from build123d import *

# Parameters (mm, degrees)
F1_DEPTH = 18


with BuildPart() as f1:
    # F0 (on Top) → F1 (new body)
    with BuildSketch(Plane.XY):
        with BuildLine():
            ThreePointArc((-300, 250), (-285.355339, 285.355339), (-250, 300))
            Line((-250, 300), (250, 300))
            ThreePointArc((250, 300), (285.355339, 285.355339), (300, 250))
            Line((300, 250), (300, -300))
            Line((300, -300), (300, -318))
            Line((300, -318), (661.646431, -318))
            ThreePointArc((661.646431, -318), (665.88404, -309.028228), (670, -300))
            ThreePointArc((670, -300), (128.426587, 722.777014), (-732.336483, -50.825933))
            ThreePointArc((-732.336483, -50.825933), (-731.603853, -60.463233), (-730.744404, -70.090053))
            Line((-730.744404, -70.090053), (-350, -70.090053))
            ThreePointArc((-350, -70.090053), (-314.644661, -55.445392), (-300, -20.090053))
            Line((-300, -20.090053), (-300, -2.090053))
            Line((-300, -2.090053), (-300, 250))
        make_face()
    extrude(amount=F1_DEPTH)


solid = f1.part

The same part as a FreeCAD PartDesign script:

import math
import FreeCAD as App
import Part
import Sketcher

V = App.Vector

doc = App.newDocument("Part")
body = doc.addObject("PartDesign::Body", "Body")

# Sketch on XY plane
sketch1 = doc.addObject("Sketcher::SketchObject", "Sketch")
body.addObject(sketch1)
sketch1.AttachmentSupport = (doc.XY_Plane, [""])
sketch1.MapMode = "FlatFace"
sketch1.addGeometry(Part.ArcOfCircle(Part.Circle(V(-250, 250, 0), V(0, 0, 1), 50), math.radians(90), math.radians(180)), False)
sketch1.addGeometry(Part.LineSegment(V(-250, 300, 0), V(250, 300, 0)), False)
sketch1.addGeometry(Part.ArcOfCircle(Part.Circle(V(250, 250, 0), V(0, 0, 1), 50), math.radians(0), math.radians(90)), False)
sketch1.addGeometry(Part.LineSegment(V(300, 250, 0), V(300, -318, 0)), False)
sketch1.addGeometry(Part.LineSegment(V(300, -318, 0), V(662, -318, 0)), False)
sketch1.addGeometry(Part.ArcOfCircle(Part.Circle(V(0, 0, 0), V(0, 0, 1), 734), math.radians(-25.67), math.radians(-24.12)), False)
sketch1.addGeometry(Part.ArcOfCircle(Part.Circle(V(0, 0, 0), V(0, 0, 1), 734), math.radians(-24), math.radians(184)), False)
sketch1.addGeometry(Part.ArcOfCircle(Part.Circle(V(0, 0, 0), V(0, 0, 1), 734), math.radians(-176.03), math.radians(-174.52)), False)
sketch1.addGeometry(Part.LineSegment(V(-731, -70, 0), V(-350, -70, 0)), False)
sketch1.addGeometry(Part.ArcOfCircle(Part.Circle(V(-350, -20, 0), V(0, 0, 1), 50), math.radians(-90), math.radians(0)), False)
sketch1.addGeometry(Part.LineSegment(V(-300, -20, 0), V(-300, 250, 0)), False)
sketch1.addConstraint(Sketcher.Constraint("Tangent", 0, 1, 1, 1))
sketch1.addConstraint(Sketcher.Constraint("Tangent", 1, 2, 2, 2))
sketch1.addConstraint(Sketcher.Constraint("Tangent", 2, 1, 3, 1))
sketch1.addConstraint(Sketcher.Constraint("Coincident", 3, 2, 4, 1))
sketch1.addConstraint(Sketcher.Constraint("Coincident", 4, 2, 5, 1))
sketch1.addConstraint(Sketcher.Constraint("Coincident", 5, 2, 6, 1))
sketch1.addConstraint(Sketcher.Constraint("Coincident", 6, 2, 7, 1))
sketch1.addConstraint(Sketcher.Constraint("Coincident", 7, 2, 8, 1))
sketch1.addConstraint(Sketcher.Constraint("Tangent", 8, 2, 9, 1))
sketch1.addConstraint(Sketcher.Constraint("Tangent", 9, 2, 10, 1))
sketch1.addConstraint(Sketcher.Constraint("Tangent", 10, 2, 0, 2))
sketch1.addConstraint(Sketcher.Constraint("Horizontal", 1))
sketch1.addConstraint(Sketcher.Constraint("Vertical", 3))
sketch1.addConstraint(Sketcher.Constraint("Horizontal", 4))
sketch1.addConstraint(Sketcher.Constraint("Horizontal", 8))
sketch1.addConstraint(Sketcher.Constraint("Vertical", 10))
sketch1.addConstraint(Sketcher.Constraint("Coincident", 6, 3, -1, 1))
sketch1.addConstraint(Sketcher.Constraint("Equal", 0, 2))
sketch1.addConstraint(Sketcher.Constraint("Equal", 2, 9))
sketch1.addConstraint(Sketcher.Constraint("Radius", 0, 50.0))
sketch1.addConstraint(Sketcher.Constraint("DistanceX", 1, 1, 1, 2, 500.0))
sketch1.addConstraint(Sketcher.Constraint("DistanceY", 3, 2, 3, 1, 568.0))
sketch1.addConstraint(Sketcher.Constraint("DistanceX", 0, 3, -1, 1, 250.0))
sketch1.addConstraint(Sketcher.Constraint("DistanceY", -1, 1, 0, 3, 250.0))
sketch1.addConstraint(Sketcher.Constraint("DistanceX", -1, 1, 5, 2, 670.0))
sketch1.addConstraint(Sketcher.Constraint("Radius", 7, 734.093239))
sketch1.addConstraint(Sketcher.Constraint("Radius", 5, 734.093612))
sketch1.addConstraint(Sketcher.Constraint("Radius", 6, 734.098086))
sketch1.addConstraint(Sketcher.Constraint("DistanceX", 4, 1, 4, 2, 361.646431))
sketch1.addConstraint(Sketcher.Constraint("DistanceX", 8, 1, 8, 2, 380.744404))
sketch1.addConstraint(Sketcher.Constraint("DistanceY", 10, 1, 10, 2, 270.090053))
sketch1.addConstraint(Sketcher.Constraint("DistanceY", 6, 2, 9, 3, 30.73588))
pad1 = doc.addObject("PartDesign::Pad", "Pad")
body.addObject(pad1)
pad1.Profile = sketch1
pad1.Length = 18

doc.recompute()
